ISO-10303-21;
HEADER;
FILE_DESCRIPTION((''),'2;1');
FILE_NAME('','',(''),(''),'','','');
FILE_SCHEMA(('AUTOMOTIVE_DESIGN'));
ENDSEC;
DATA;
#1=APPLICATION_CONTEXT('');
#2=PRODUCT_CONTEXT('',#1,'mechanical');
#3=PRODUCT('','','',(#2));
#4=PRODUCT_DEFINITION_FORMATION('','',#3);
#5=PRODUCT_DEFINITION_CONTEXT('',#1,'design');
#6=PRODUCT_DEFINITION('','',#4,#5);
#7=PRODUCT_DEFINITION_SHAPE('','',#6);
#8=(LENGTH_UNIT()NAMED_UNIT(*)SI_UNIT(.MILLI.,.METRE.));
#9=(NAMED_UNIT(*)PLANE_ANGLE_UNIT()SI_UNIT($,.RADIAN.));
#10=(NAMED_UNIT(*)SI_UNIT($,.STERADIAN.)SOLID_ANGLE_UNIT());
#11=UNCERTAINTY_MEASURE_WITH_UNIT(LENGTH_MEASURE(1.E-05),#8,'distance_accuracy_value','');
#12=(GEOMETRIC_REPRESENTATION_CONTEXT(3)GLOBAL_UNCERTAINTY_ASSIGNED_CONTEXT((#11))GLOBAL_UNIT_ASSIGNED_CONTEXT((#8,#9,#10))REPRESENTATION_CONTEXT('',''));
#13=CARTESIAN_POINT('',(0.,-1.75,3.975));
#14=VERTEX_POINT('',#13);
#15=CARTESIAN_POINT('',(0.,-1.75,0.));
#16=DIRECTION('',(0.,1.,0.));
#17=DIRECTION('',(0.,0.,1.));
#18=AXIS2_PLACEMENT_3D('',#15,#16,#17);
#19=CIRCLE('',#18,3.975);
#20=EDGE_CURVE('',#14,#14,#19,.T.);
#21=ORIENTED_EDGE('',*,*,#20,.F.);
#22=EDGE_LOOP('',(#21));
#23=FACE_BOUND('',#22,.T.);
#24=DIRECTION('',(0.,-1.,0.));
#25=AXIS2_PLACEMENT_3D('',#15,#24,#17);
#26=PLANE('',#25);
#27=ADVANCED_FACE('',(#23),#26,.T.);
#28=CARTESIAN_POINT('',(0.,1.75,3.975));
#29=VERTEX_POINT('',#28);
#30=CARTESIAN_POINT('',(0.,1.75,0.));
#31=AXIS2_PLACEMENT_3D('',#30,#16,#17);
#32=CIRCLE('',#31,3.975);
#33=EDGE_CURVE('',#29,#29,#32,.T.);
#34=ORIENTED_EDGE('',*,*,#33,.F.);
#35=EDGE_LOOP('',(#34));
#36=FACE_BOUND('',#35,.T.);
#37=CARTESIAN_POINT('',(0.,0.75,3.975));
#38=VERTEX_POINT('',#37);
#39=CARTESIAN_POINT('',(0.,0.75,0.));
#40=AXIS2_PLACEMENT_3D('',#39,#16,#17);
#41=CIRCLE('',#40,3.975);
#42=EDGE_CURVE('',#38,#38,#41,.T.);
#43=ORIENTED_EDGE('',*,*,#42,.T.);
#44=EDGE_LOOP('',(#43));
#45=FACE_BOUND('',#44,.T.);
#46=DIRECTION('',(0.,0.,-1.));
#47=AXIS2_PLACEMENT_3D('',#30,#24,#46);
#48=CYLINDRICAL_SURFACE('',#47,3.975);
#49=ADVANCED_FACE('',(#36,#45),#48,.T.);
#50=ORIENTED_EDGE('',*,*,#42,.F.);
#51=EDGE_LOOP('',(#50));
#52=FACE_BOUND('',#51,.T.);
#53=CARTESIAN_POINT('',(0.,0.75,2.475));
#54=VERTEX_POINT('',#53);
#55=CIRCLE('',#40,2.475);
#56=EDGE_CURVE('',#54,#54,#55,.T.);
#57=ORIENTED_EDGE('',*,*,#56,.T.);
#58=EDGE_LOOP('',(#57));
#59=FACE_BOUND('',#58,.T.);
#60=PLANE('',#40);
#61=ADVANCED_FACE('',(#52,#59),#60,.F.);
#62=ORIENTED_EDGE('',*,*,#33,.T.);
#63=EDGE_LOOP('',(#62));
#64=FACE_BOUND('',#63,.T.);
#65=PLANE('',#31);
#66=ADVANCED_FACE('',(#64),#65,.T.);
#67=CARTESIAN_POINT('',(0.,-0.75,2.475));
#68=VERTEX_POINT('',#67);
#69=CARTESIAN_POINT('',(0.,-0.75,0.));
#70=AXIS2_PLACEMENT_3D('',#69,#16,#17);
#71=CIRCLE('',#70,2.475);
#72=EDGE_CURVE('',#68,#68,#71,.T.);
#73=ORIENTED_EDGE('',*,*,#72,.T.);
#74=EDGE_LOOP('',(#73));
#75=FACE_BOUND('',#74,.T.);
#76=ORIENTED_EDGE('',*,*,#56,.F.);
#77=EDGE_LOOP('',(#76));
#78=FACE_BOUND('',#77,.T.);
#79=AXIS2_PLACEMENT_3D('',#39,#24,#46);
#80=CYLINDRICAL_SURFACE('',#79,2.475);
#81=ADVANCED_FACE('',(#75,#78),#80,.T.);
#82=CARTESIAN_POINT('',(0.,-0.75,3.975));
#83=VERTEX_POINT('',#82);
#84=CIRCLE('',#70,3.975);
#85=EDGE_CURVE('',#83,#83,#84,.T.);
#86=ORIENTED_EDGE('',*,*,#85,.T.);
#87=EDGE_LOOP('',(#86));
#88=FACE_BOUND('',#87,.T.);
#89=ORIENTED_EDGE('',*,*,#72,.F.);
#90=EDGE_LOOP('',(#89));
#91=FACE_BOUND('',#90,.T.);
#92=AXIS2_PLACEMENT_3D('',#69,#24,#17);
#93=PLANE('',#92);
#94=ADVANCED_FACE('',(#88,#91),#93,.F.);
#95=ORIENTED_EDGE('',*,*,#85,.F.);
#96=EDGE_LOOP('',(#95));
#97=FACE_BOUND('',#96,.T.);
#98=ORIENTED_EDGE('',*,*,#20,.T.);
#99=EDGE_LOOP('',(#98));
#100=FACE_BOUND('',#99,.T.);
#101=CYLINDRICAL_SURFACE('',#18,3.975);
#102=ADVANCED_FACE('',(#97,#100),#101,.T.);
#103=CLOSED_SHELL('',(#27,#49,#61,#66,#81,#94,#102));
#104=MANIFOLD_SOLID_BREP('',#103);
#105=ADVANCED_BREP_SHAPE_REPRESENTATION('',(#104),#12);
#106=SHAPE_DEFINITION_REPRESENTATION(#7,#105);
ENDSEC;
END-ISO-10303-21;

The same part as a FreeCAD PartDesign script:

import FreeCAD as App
import Part
import Sketcher
from FreeCAD import Vector

doc = App.newDocument("Part")
body = doc.addObject("PartDesign::Body", "Body")

sketch1 = doc.addObject("Sketcher::SketchObject", "Sketch")
body.addObject(sketch1)
sketch1.AttachmentSupport = (doc.XZ_Plane, [""])
sketch1.MapMode = "FlatFace"
sketch1.addGeometry(Part.Circle(Vector(0, 0, 0), Vector(0, 0, 1), 2.5), False)
sketch1.addConstraint(Sketcher.Constraint("Coincident", 0, 3, -1, 1))
sketch1.addConstraint(Sketcher.Constraint("Diameter", 0, 4.95))
pad1 = doc.addObject("PartDesign::Pad", "Pad")
body.addObject(pad1)
pad1.Profile = sketch1
pad1.Length = 1.5
pad1.Midplane = True

sketch2 = doc.addObject("Sketcher::SketchObject", "Sketch001")
body.addObject(sketch2)
sketch2.AttachmentSupport = (doc.XZ_Plane, [""])
sketch2.MapMode = "FlatFace"
sketch2.AttachmentOffset = App.Placement(Vector(0, 0, -0.75), App.Rotation())
sketch2.addGeometry(Part.Circle(Vector(0, 0, 0), Vector(0, 0, 1), 4), False)
sketch2.addConstraint(Sketcher.Constraint("Coincident", 0, 3, -1, 1))
sketch2.addConstraint(Sketcher.Constraint("Diameter", 0, 7.95))
pad2 = doc.addObject("PartDesign::Pad", "Pad001")
body.addObject(pad2)
pad2.Profile = sketch2
pad2.Length = 1
pad2.Reversed = True
doc.recompute()

mirrored = doc.addObject("PartDesign::Mirrored", "Mirrored")
body.addObject(mirrored)
mirrored.Originals = [pad2]
mirrored.MirrorPlane = (doc.XZ_Plane, [""])
body.Tip = mirrored

doc.recompute()
